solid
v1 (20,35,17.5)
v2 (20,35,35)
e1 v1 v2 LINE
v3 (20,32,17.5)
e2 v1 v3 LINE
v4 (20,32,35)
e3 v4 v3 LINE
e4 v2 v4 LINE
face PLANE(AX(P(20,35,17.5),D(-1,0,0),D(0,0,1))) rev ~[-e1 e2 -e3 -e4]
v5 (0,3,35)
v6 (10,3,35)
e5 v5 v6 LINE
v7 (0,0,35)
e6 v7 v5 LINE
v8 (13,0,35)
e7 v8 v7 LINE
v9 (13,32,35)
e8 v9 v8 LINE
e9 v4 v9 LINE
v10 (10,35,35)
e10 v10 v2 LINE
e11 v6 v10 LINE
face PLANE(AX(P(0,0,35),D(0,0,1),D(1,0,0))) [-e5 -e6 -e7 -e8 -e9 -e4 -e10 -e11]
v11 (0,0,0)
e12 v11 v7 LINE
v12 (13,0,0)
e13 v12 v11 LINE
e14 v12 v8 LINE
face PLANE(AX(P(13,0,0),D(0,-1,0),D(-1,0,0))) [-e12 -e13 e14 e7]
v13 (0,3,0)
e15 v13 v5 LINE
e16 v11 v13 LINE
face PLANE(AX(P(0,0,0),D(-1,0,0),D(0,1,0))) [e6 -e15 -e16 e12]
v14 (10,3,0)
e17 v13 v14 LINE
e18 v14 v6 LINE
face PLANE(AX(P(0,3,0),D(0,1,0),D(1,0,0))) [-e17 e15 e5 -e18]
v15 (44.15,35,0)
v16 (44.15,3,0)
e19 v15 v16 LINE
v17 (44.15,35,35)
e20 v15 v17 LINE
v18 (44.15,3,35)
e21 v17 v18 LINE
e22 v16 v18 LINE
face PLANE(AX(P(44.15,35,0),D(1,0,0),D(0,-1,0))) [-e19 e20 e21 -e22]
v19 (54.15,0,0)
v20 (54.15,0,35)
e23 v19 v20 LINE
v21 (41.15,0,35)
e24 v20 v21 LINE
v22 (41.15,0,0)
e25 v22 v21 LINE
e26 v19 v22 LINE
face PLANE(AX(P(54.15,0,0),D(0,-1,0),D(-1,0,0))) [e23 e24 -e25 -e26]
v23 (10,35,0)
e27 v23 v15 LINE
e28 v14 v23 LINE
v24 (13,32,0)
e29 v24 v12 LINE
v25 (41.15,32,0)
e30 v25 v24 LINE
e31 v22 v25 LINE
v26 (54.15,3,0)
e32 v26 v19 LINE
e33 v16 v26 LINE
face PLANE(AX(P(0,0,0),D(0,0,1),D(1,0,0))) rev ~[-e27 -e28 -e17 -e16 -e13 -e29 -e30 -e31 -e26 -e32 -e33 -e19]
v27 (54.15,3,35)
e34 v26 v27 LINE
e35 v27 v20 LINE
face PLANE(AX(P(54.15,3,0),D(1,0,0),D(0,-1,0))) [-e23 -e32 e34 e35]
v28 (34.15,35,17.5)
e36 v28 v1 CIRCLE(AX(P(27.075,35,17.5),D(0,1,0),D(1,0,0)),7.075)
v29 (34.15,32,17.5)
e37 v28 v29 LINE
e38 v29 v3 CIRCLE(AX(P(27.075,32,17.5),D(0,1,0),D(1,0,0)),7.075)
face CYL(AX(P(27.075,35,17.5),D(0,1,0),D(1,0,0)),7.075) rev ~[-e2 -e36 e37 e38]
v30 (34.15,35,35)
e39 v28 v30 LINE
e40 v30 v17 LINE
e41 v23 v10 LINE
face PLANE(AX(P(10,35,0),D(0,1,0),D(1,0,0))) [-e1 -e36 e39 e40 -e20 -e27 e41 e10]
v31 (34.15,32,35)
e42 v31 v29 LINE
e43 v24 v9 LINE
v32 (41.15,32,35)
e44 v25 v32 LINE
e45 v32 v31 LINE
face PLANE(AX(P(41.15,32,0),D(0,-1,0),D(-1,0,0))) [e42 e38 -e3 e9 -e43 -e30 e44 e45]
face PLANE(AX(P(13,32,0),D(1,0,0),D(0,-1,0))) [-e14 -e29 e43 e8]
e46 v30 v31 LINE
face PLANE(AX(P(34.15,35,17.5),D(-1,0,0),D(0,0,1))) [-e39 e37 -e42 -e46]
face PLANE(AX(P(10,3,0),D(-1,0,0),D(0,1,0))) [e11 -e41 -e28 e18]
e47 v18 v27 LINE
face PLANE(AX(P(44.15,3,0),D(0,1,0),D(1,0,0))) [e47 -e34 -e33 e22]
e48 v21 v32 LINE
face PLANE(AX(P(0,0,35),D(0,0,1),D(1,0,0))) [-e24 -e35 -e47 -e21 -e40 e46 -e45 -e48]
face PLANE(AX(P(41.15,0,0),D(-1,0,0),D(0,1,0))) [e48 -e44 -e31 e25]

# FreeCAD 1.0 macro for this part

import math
import FreeCAD as App
import Part
import Sketcher
from FreeCAD import Vector


def add_polygon(sketch, points):
    """Adds a closed chain of lines whose ends are joined by coincident constraints."""
    first, n = sketch.GeometryCount, len(points)
    for a, b in zip(points, points[1:] + points[:1]):
        sketch.addGeometry(Part.LineSegment(App.Vector(*a, 0), App.Vector(*b, 0)), False)
    for i in range(n):
        sketch.addConstraint(Sketcher.Constraint("Coincident", first + i, 2, first + (i + 1) % n, 1))

doc = App.newDocument("Part")
params = doc.addObject("Spreadsheet::Sheet", "Params")
for row, (alias, value) in enumerate([
    ("sketch1_width", "13 mm"),
    ("sketch1_width2", "10 mm"),
    ("sketch1_height", "3 mm"),
    ("sketch1_height2", "32 mm"),
    ("sketch1_width3", "28.15 mm"),
    ("pad1_length", "35 mm"),
    ("sketch2_height", "17.5 mm"),
    ("pocket1_length", "10 mm"),
], start=1):
    params.set(f"A{row}", alias)
    params.set(f"B{row}", "=" + value)
    params.setAlias(f"B{row}", alias)

body = doc.addObject("PartDesign::Body", "Body")

# Sketch on XY plane
sketch1 = doc.addObject("Sketcher::SketchObject", "Sketch")
body.addObject(sketch1)
sketch1.AttachmentSupport = (doc.XY_Plane, [""])
sketch1.MapMode = "FlatFace"
add_polygon(sketch1, [(0, 3), (0, 0), (13, 0), (13, 32), (41.1, 32), (41.1, 0), (54.1, 0), (54.1, 3), (44.1, 3), (44.1, 35), (10, 35), (10, 3)])  # lines 0-11
sketch1.addConstraint(Sketcher.Constraint("Vertical", 0))
sketch1.addConstraint(Sketcher.Constraint("Horizontal", 1))
sketch1.addConstraint(Sketcher.Constraint("Vertical", 2))
sketch1.addConstraint(Sketcher.Constraint("Horizontal", 3))
sketch1.addConstraint(Sketcher.Constraint("Vertical", 4))
sketch1.addConstraint(Sketcher.Constraint("Horizontal", 5))
sketch1.addConstraint(Sketcher.Constraint("Vertical", 6))
sketch1.addConstraint(Sketcher.Constraint("Horizontal", 7))
sketch1.addConstraint(Sketcher.Constraint("Vertical", 8))
sketch1.addConstraint(Sketcher.Constraint("Horizontal", 9))
sketch1.addConstraint(Sketcher.Constraint("Vertical", 10))
sketch1.addConstraint(Sketcher.Constraint("Horizontal", 11))
sketch1.addConstraint(Sketcher.Constraint("Coincident", 0, 2, -1, 1))
sketch1.addConstraint(Sketcher.Constraint("PointOnObject", 4, 2, -1))
sketch1.addConstraint(Sketcher.Constraint("Horizontal", 7, 2, 10, 2))
sketch1.addConstraint(Sketcher.Constraint("Equal", 1, 5))
sketch1.addConstraint(Sketcher.Constraint("Equal", 7, 11))
sketch1.addConstraint(Sketcher.Constraint("Equal", 4, 8))
sketch1.addConstraint(Sketcher.Constraint("DistanceX", 1, 1, 1, 2, 13.0))
sketch1.addConstraint(Sketcher.Constraint("DistanceX", 7, 2, 7, 1, 10.0))
sketch1.addConstraint(Sketcher.Constraint("DistanceY", 0, 2, 0, 1, 3.0))
sketch1.addConstraint(Sketcher.Constraint("DistanceY", 2, 1, 2, 2, 32.0))
sketch1.addConstraint(Sketcher.Constraint("DistanceX", 3, 1, 3, 2, 28.15))
sketch1.setExpression("Constraints[30]", "Params.sketch1_width")
sketch1.setExpression("Constraints[31]", "Params.sketch1_width2")
sketch1.setExpression("Constraints[32]", "Params.sketch1_height")
sketch1.setExpression("Constraints[33]", "Params.sketch1_height2")
sketch1.setExpression("Constraints[34]", "Params.sketch1_width3")
pad1 = doc.addObject("PartDesign::Pad", "Pad")
body.addObject(pad1)
pad1.Profile = sketch1
pad1.setExpression("Length", "Params.pad1_length")

# Sketch on XZ plane
sketch2 = doc.addObject("Sketcher::SketchObject", "Sketch001")
body.addObject(sketch2)
sketch2.AttachmentSupport = (doc.XZ_Plane, [""])
sketch2.MapMode = "FlatFace"
sketch2.AttachmentOffset = App.Placement(Vector(0, 0, -35), App.Rotation())
sketch2.addGeometry(Part.LineSegment(Vector(34, 35, 0), Vector(34, 18, 0)), False)
sketch2.addGeometry(Part.ArcOfCircle(Part.Circle(Vector(27, 18, 0), Vector(0, 0, 1), 7), math.radians(180), math.radians(360)), False)
sketch2.addGeometry(Part.LineSegment(Vector(20, 18, 0), Vector(20, 35, 0)), False)
sketch2.addGeometry(Part.LineSegment(Vector(20, 35, 0), Vector(34, 35, 0)), False)
sketch2.addConstraint(Sketcher.Constraint("Tangent", 0, 2, 1, 2))
sketch2.addConstraint(Sketcher.Constraint("Tangent", 1, 1, 2, 1))
sketch2.addConstraint(Sketcher.Constraint("Coincident", 2, 2, 3, 1))
sketch2.addConstraint(Sketcher.Constraint("Coincident", 3, 2, 0, 1))
sketch2.addConstraint(Sketcher.Constraint("Vertical", 0))
sketch2.addConstraint(Sketcher.Constraint("Vertical", 2))
sketch2.addConstraint(Sketcher.Constraint("Horizontal", 3))
sketch2.addConstraint(Sketcher.Constraint("DistanceY", 0, 2, 0, 1, 17.5))
sketch2.addConstraint(Sketcher.Constraint("DistanceX", -1, 1, 1, 1, 20.0))
sketch2.addConstraint(Sketcher.Constraint("DistanceY", -1, 1, 2, 2, 35.0))
sketch2.addConstraint(Sketcher.Constraint("Radius", 1, 7.075))
sketch2.setExpression("Constraints[7]", "Params.sketch2_height")
pocket1 = doc.addObject("PartDesign::Pocket", "Pocket")
body.addObject(pocket1)
pocket1.Profile = sketch2
pocket1.setExpression("Length", "Params.pocket1_length")
pocket1.Reversed = True

doc.recompute()
